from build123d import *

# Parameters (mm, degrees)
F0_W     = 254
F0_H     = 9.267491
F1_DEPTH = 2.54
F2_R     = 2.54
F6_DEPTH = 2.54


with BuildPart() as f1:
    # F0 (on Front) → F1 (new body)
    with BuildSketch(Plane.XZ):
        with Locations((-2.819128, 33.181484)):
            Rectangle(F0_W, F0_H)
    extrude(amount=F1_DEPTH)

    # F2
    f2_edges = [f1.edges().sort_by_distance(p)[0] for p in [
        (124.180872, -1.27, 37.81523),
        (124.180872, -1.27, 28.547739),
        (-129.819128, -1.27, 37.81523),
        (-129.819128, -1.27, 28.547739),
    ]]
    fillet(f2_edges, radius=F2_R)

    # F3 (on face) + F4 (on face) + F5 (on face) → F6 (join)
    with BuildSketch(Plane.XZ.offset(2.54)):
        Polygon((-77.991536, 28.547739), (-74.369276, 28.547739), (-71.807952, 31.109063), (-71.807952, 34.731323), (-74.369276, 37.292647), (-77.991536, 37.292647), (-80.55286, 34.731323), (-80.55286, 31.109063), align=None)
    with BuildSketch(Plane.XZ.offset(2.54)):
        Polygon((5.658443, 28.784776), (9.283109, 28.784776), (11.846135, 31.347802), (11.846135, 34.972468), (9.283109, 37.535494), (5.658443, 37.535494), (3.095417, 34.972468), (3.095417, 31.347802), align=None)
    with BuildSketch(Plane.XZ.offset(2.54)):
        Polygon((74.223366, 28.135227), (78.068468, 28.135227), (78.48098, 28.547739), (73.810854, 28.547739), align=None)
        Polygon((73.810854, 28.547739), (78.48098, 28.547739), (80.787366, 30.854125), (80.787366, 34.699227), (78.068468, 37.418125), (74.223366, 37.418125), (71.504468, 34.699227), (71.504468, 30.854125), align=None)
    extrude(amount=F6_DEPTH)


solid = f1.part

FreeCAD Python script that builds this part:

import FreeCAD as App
import Part
import Sketcher
Q = App.Units.Quantity


def edges_at(feature, points):
    """Names of the edges that pass closest to the given points."""
    edges = feature.Shape.Edges
    near = lambda p: min(range(len(edges)), key=lambda i: edges[i].distToShape(Part.Vertex(*p))[0])
    return sorted({f"Edge{near(p) + 1}" for p in points})


def add_polygon(sketch, points):
    """Adds a closed chain of lines whose ends are joined by coincident constraints."""
    first, n = sketch.GeometryCount, len(points)
    for a, b in zip(points, points[1:] + points[:1]):
        sketch.addGeometry(Part.LineSegment(App.Vector(*a, 0), App.Vector(*b, 0)), False)
    for i in range(n):
        sketch.addConstraint(Sketcher.Constraint("Coincident", first + i, 2, first + (i + 1) % n, 1))

doc = App.newDocument("Part")
body = doc.addObject("PartDesign::Body", "Body")

# Sketch on XZ plane
sketch1 = body.newObject("Sketcher::SketchObject", "Sketch")
sketch1.AttachmentSupport = (doc.getObject("XZ_Plane"), [""])
sketch1.MapMode = "FlatFace"
add_polygon(sketch1, [(-129.819128, 37.81523), (-129.819128, 28.547739), (124.180872, 28.547739), (124.180872, 37.81523)])  # lines 0-3
sketch1.addConstraint([
    Sketcher.Constraint("Vertical", 0),
    Sketcher.Constraint("Horizontal", 1),
    Sketcher.Constraint("Vertical", 2),
    Sketcher.Constraint("Horizontal", 3),
    Sketcher.Constraint("DistanceX", 1, 1, 1, 2, Q("10 in")),
    Sketcher.Constraint("DistanceY", 0, 2, 0, 1, Q("9.267491 mm")),
    Sketcher.Constraint("DistanceX", 0, 2, -1, 1, Q("129.819128 mm")),
    Sketcher.Constraint("DistanceY", -1, 1, 0, 2, Q("28.547739 mm")),
])
pad1 = body.newObject("PartDesign::Pad", "Pad")
pad1.Profile = sketch1
pad1.Length = Q("0.1 in")
doc.recompute()

fillet = body.newObject("PartDesign::Fillet", "Fillet")
fillet.Base = (pad1, edges_at(pad1, [
    (124.181, -1.27, 37.815),
    (124.181, -1.27, 28.548),
    (-129.819, -1.27, 37.815),
    (-129.819, -1.27, 28.548),
]))
fillet.Radius = Q("0.1 in")

# Sketch on XZ plane
sketch2 = body.newObject("Sketcher::SketchObject", "Sketch001")
sketch2.AttachmentSupport = (doc.getObject("XZ_Plane"), [""])
sketch2.MapMode = "FlatFace"
sketch2.AttachmentOffset = App.Placement(App.Vector(0, 0, 0.1 * 25.4), App.Rotation())
add_polygon(sketch2, [(-77.991536, 28.547739), (-74.369276, 28.547739), (-71.807952, 31.109063), (-71.807952, 34.731323), (-74.369276, 37.292647), (-77.991536, 37.292647), (-80.55286, 34.731323), (-80.55286, 31.109063)])  # lines 0-7
add_polygon(sketch2, [(5.658443, 28.784776), (9.283109, 28.784776), (11.846135, 31.347802), (11.846135, 34.972468), (9.283109, 37.535494), (5.658443, 37.535494), (3.095417, 34.972468), (3.095417, 31.347802)])  # lines 8-15
add_polygon(sketch2, [(74.223366, 28.135227), (78.068468, 28.135227), (80.787366, 30.854125), (80.787366, 34.699227), (78.068468, 37.418125), (74.223366, 37.418125), (71.504468, 34.699227), (71.504468, 30.854125)])  # lines 16-23
sketch2.addConstraint([
    Sketcher.Constraint("Horizontal", 0),
    Sketcher.Constraint("Vertical", 2),
    Sketcher.Constraint("Horizontal", 4),
    Sketcher.Constraint("Vertical", 6),
    Sketcher.Constraint("Horizontal", 8),
    Sketcher.Constraint("Vertical", 10),
    Sketcher.Constraint("Horizontal", 12),
    Sketcher.Constraint("Vertical", 14),
    Sketcher.Constraint("Horizontal", 16),
    Sketcher.Constraint("Vertical", 18),
    Sketcher.Constraint("Horizontal", 20),
    Sketcher.Constraint("Vertical", 22),
    Sketcher.Constraint("Perpendicular", 1, 3),
    Sketcher.Constraint("Perpendicular", 3, 5),
    Sketcher.Constraint("Perpendicular", 5, 7),
    Sketcher.Constraint("Perpendicular", 7, 9),
    Sketcher.Constraint("Perpendicular", 9, 11),
    Sketcher.Constraint("Perpendicular", 11, 13),
    Sketcher.Constraint("Perpendicular", 13, 15),
    Sketcher.Constraint("Perpendicular", 15, 17),
    Sketcher.Constraint("Perpendicular", 17, 19),
    Sketcher.Constraint("Perpendicular", 19, 21),
    Sketcher.Constraint("Perpendicular", 21, 23),
    Sketcher.Constraint("Horizontal", 2, 2, 5, 2),
    Sketcher.Constraint("Horizontal", 1, 2, 6, 2),
    Sketcher.Constraint("Horizontal", 10, 2, 13, 2),
    Sketcher.Constraint("Horizontal", 9, 2, 14, 2),
    Sketcher.Constraint("Horizontal", 18, 2, 21, 2),
    Sketcher.Constraint("Horizontal", 17, 2, 22, 2),
    Sketcher.Constraint("Vertical", 0, 2, 3, 2),
    Sketcher.Constraint("Vertical", 4, 2, 7, 2),
    Sketcher.Constraint("Vertical", 8, 2, 11, 2),
    Sketcher.Constraint("Vertical", 16, 2, 19, 2),
    Sketcher.Constraint("Equal", 4, 2),
    Sketcher.Constraint("Equal", 12, 10),
    Sketcher.Constraint("Equal", 20, 18),
    Sketcher.Constraint("DistanceX", 16, 1, 16, 2, Q("3.845102 mm")),
    Sketcher.Constraint("DistanceX", 0, 1, 0, 2, Q("3.62226 mm")),
    Sketcher.Constraint("DistanceX", 16, 2, 17, 2, Q("2.718898 mm")),
    Sketcher.Constraint("Distance", 1, Q("3.622259 mm")),
    Sketcher.Constraint("DistanceX", 8, 1, 8, 2, Q("3.624666 mm")),
    Sketcher.Constraint("DistanceY", -1, 1, 0, 2, Q("28.547739 mm")),
    Sketcher.Constraint("DistanceX", 1, 2, -1, 1, Q("71.807952 mm")),
    Sketcher.Constraint("DistanceX", -1, 1, 8, 2, Q("9.283109 mm")),
    Sketcher.Constraint("DistanceX", -1, 1, 21, 2, Q("71.504468 mm")),
    Sketcher.Constraint("DistanceY", 8, 2, 3, 2, Q("8.507871 mm")),
    Sketcher.Constraint("DistanceY", 1, 2, 9, 2, Q("0.238739 mm")),
    Sketcher.Constraint("DistanceY", 16, 2, 10, 2, Q("6.837241 mm")),
])
pad2 = body.newObject("PartDesign::Pad", "Pad001")
pad2.Profile = sketch2
pad2.Length = Q("0.1 in")

doc.recompute()
